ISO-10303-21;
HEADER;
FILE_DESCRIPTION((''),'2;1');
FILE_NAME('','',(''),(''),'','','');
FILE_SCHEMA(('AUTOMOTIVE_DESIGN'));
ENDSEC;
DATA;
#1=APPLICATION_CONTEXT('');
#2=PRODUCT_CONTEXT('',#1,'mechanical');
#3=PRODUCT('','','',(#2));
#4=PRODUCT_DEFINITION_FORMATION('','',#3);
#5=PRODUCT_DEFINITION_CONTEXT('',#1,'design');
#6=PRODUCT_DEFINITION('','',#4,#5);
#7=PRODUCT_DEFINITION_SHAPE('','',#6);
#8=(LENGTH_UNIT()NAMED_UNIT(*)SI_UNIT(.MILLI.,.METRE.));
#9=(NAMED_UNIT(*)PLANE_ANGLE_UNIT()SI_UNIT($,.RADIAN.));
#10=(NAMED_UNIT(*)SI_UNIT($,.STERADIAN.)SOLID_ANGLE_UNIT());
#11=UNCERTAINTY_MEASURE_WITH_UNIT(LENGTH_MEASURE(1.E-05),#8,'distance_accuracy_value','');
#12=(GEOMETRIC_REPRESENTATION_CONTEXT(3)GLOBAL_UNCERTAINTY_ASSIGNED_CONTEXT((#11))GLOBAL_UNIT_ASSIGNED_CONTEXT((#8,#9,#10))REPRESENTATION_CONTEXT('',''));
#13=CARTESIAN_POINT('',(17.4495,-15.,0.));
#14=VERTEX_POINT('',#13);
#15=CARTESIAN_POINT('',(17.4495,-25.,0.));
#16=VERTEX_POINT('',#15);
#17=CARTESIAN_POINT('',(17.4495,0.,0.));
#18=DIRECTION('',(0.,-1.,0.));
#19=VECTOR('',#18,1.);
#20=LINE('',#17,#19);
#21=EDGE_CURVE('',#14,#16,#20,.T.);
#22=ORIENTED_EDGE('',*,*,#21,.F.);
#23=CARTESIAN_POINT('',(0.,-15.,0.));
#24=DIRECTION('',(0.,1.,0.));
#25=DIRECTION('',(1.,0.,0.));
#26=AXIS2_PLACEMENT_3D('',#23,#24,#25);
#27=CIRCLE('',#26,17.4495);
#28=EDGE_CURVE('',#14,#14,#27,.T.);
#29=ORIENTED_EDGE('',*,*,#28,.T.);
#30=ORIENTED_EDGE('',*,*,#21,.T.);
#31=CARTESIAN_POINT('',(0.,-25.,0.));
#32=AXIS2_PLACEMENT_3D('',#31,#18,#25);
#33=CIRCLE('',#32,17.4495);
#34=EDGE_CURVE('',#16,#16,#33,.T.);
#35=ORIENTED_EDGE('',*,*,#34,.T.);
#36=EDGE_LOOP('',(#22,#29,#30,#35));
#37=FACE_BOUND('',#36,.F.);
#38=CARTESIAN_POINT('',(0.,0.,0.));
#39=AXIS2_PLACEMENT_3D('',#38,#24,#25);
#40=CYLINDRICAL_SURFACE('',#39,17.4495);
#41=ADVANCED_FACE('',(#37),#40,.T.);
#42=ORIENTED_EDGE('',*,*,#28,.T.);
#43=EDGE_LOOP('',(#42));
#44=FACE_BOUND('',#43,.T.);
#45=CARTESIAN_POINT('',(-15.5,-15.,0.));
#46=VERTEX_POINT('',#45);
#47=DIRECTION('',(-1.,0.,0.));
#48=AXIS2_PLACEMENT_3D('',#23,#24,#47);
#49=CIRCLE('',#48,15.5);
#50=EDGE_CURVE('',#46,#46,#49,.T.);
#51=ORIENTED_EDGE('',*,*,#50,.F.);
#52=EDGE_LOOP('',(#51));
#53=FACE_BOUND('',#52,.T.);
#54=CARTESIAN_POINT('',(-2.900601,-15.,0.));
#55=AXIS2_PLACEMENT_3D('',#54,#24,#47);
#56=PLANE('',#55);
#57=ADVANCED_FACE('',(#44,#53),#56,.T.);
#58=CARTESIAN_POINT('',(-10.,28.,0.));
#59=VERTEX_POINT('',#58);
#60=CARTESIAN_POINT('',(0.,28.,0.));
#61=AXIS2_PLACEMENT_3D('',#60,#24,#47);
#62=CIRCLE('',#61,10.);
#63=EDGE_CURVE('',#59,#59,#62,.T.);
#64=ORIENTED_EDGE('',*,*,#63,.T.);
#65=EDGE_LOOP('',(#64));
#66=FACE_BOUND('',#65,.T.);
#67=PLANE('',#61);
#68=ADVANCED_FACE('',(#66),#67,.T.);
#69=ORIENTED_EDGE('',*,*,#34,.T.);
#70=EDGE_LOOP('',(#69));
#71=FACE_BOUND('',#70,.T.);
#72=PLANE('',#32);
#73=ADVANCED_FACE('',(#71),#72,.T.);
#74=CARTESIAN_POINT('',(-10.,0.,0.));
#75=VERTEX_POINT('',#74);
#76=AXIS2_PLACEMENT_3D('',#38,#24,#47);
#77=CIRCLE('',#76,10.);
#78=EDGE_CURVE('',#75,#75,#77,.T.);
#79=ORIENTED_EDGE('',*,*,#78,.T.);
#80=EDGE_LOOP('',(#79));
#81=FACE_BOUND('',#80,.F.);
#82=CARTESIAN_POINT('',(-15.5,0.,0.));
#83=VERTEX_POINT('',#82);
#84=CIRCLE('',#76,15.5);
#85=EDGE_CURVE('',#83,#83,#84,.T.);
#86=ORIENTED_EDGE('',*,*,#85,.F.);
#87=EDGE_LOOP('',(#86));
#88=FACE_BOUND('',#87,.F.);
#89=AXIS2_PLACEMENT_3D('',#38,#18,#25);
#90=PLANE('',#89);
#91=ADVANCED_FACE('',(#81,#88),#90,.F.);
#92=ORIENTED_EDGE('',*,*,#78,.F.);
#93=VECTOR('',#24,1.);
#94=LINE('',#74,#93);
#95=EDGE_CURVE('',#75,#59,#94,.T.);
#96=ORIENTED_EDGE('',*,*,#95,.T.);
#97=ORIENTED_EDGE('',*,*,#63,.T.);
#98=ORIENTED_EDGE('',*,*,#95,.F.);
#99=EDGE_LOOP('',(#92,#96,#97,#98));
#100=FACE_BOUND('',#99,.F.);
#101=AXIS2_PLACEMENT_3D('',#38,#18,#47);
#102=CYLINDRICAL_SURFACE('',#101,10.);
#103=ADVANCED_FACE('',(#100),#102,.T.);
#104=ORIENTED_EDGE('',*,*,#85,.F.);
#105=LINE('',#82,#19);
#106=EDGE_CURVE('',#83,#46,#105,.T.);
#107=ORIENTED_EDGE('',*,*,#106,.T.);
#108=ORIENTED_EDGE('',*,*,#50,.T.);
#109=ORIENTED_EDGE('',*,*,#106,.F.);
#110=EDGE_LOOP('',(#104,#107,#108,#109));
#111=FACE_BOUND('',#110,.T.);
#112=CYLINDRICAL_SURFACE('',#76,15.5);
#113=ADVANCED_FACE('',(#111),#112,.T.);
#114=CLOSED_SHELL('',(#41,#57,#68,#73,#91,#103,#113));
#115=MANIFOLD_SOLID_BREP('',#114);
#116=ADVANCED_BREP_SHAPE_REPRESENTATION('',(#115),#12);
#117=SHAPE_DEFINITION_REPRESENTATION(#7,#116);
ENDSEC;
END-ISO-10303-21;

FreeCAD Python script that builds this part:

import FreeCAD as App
import Part
import Sketcher
from FreeCAD import Vector
Q = App.Units.Quantity

doc = App.newDocument("Part")
params = doc.addObject("Spreadsheet::Sheet", "Params")
for row, (alias, value) in enumerate([
    ("pad1_length", "25 mm"),
    ("sketch2_diameter", "31 mm"),
    ("pocket1_length", "15 mm"),
    ("sketch3_diameter", "20 mm"),
    ("pad2_length", "28 mm"),
], start=1):
    params.set(f"A{row}", alias)
    params.set(f"B{row}", "=" + value)
    params.setAlias(f"B{row}", alias)

body = doc.addObject("PartDesign::Body", "Body")

sketch1 = body.newObject("Sketcher::SketchObject", "Sketch")
sketch1.AttachmentSupport = (doc.getObject("XZ_Plane"), [""])
sketch1.MapMode = "FlatFace"
sketch1.addGeometry(Part.Circle(Vector(0, 0, 0), Vector(0, 0, 1), 17.4495), False)
sketch1.addConstraint([
    Sketcher.Constraint("Coincident", 0, 3, -1, 1),
    Sketcher.Constraint("Diameter", 0, Q("34.899 mm")),
])
pad1 = body.newObject("PartDesign::Pad", "Pad")
pad1.Profile = sketch1
pad1.setExpression("Length", "Params.pad1_length")

sketch2 = body.newObject("Sketcher::SketchObject", "Sketch001")
sketch2.AttachmentSupport = (doc.getObject("XZ_Plane"), [""])
sketch2.MapMode = "FlatFace"
sketch2.addGeometry([
    Part.Circle(Vector(-2.900601, 0, 0), Vector(0, 0, 1), 26.49903),
    Part.Circle(Vector(0, 0, 0), Vector(0, 0, 1), 15.5),
], False)
sketch2.addConstraint([
    Sketcher.Constraint("Coincident", 1, 3, -1, 1),
    Sketcher.Constraint("PointOnObject", 0, 3, -1),
    Sketcher.Constraint("Diameter", 1, Q("31 mm")),
    Sketcher.Constraint("Diameter", 0, Q("52.99806 mm")),
    Sketcher.Constraint("DistanceX", 0, 3, -1, 1, Q("2.900601 mm")),
])
sketch2.setExpression("Constraints[2]", "Params.sketch2_diameter")
pocket1 = body.newObject("PartDesign::Pocket", "Pocket")
pocket1.Profile = sketch2
pocket1.setExpression("Length", "Params.pocket1_length")
pocket1.Reversed = True

sketch3 = body.newObject("Sketcher::SketchObject", "Sketch002")
sketch3.AttachmentSupport = (doc.getObject("XZ_Plane"), [""])
sketch3.MapMode = "FlatFace"
sketch3.addGeometry(Part.Circle(Vector(0, 0, 0), Vector(0, 0, 1), 10), False)
sketch3.addConstraint([
    Sketcher.Constraint("Coincident", 0, 3, -1, 1),
    Sketcher.Constraint("Diameter", 0, Q("20 mm")),
])
sketch3.setExpression("Constraints[1]", "Params.sketch3_diameter")
pad2 = body.newObject("PartDesign::Pad", "Pad001")
pad2.Profile = sketch3
pad2.setExpression("Length", "Params.pad2_length")
pad2.Reversed = True

doc.recompute()
